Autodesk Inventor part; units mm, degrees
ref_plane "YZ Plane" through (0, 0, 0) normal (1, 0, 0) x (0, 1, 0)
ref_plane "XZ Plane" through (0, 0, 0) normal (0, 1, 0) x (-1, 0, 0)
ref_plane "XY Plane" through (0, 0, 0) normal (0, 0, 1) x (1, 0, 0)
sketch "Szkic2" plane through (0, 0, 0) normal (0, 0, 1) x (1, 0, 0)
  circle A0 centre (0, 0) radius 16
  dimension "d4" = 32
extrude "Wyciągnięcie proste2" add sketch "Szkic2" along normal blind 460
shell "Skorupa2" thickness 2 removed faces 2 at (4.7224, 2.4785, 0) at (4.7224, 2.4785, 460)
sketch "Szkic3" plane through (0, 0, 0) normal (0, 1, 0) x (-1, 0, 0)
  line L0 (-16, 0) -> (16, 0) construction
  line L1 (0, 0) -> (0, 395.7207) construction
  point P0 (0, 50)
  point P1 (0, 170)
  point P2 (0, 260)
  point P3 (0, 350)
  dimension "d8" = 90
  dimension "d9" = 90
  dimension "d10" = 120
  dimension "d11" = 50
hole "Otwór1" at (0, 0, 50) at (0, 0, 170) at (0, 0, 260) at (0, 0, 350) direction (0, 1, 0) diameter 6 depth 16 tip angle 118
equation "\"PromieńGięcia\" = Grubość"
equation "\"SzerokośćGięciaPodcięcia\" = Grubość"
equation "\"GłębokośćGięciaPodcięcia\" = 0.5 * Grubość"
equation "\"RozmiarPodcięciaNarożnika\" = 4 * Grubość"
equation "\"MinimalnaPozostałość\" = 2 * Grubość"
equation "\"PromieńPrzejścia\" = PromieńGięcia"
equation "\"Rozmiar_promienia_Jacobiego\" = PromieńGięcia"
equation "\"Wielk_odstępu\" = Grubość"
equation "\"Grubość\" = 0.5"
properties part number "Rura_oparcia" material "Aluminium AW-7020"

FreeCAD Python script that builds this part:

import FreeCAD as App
import Part
import Sketcher
Q = App.Units.Quantity


def faces_at(feature, points):
    """Names of the faces that lie closest to the given points."""
    faces = feature.Shape.Faces
    near = lambda p: min(range(len(faces)), key=lambda i: faces[i].distToShape(Part.Vertex(*p))[0])
    return sorted({f"Face{near(p) + 1}" for p in points})

doc = App.newDocument("Part")
body = doc.addObject("PartDesign::Body", "Body")

# Sketch on XY plane
sketch1 = doc.addObject("Sketcher::SketchObject", "Sketch")
body.addObject(sketch1)
sketch1.AttachmentSupport = (doc.XY_Plane, [""])
sketch1.MapMode = "FlatFace"
sketch1.addGeometry(Part.Circle(App.Vector(0, 0, 0), App.Vector(0, 0, 1), 16), False)
sketch1.addConstraint([
    Sketcher.Constraint("Coincident", 0, 3, -1, 1),
    Sketcher.Constraint("Diameter", 0, Q("32 mm")),
])
pad1 = doc.addObject("PartDesign::Pad", "Pad")
body.addObject(pad1)
pad1.Profile = sketch1
pad1.Length = 460
doc.recompute()

thickness = doc.addObject("PartDesign::Thickness", "Thickness")
body.addObject(thickness)
thickness.Base = (pad1, faces_at(pad1, [(4.722, 2.478, 0), (4.722, 2.478, 460)]))
thickness.Value = 2
thickness.Reversed = True
thickness.Join = "Intersection"

# Sketch on XZ plane
sketch2 = doc.addObject("Sketcher::SketchObject", "Sketch001")
body.addObject(sketch2)
sketch2.AttachmentSupport = (doc.XZ_Plane, [""])
sketch2.MapMode = "FlatFace"
sketch2.addGeometry([
    Part.Circle(App.Vector(0, 50, 0), App.Vector(0, 0, 1), 3),
    Part.Circle(App.Vector(0, 170, 0), App.Vector(0, 0, 1), 3),
    Part.Circle(App.Vector(0, 260, 0), App.Vector(0, 0, 1), 3),
    Part.Circle(App.Vector(0, 350, 0), App.Vector(0, 0, 1), 3),
], False)
sketch2.addConstraint([
    Sketcher.Constraint("Equal", 0, 1),
    Sketcher.Constraint("Equal", 1, 2),
    Sketcher.Constraint("Equal", 2, 3),
    Sketcher.Constraint("PointOnObject", 0, 3, -2),
    Sketcher.Constraint("PointOnObject", 1, 3, -2),
    Sketcher.Constraint("PointOnObject", 2, 3, -2),
    Sketcher.Constraint("PointOnObject", 3, 3, -2),
    Sketcher.Constraint("Diameter", 0, Q("6 mm")),
    Sketcher.Constraint("DistanceY", -1, 1, 0, 3, Q("50 mm")),
    Sketcher.Constraint("DistanceY", -1, 1, 1, 3, Q("170 mm")),
    Sketcher.Constraint("DistanceY", -1, 1, 2, 3, Q("260 mm")),
    Sketcher.Constraint("DistanceY", -1, 1, 3, 3, Q("350 mm")),
])
doc.recompute()
hole = doc.addObject("PartDesign::Hole", "Hole")
body.addObject(hole)
hole.Profile = sketch2
hole.ThreadType = "None"
hole.Diameter = 6
hole.DepthType = "Dimension"
hole.Depth = 16
hole.DrillPoint = "Angled"
hole.DrillPointAngle = 118

doc.recompute()
